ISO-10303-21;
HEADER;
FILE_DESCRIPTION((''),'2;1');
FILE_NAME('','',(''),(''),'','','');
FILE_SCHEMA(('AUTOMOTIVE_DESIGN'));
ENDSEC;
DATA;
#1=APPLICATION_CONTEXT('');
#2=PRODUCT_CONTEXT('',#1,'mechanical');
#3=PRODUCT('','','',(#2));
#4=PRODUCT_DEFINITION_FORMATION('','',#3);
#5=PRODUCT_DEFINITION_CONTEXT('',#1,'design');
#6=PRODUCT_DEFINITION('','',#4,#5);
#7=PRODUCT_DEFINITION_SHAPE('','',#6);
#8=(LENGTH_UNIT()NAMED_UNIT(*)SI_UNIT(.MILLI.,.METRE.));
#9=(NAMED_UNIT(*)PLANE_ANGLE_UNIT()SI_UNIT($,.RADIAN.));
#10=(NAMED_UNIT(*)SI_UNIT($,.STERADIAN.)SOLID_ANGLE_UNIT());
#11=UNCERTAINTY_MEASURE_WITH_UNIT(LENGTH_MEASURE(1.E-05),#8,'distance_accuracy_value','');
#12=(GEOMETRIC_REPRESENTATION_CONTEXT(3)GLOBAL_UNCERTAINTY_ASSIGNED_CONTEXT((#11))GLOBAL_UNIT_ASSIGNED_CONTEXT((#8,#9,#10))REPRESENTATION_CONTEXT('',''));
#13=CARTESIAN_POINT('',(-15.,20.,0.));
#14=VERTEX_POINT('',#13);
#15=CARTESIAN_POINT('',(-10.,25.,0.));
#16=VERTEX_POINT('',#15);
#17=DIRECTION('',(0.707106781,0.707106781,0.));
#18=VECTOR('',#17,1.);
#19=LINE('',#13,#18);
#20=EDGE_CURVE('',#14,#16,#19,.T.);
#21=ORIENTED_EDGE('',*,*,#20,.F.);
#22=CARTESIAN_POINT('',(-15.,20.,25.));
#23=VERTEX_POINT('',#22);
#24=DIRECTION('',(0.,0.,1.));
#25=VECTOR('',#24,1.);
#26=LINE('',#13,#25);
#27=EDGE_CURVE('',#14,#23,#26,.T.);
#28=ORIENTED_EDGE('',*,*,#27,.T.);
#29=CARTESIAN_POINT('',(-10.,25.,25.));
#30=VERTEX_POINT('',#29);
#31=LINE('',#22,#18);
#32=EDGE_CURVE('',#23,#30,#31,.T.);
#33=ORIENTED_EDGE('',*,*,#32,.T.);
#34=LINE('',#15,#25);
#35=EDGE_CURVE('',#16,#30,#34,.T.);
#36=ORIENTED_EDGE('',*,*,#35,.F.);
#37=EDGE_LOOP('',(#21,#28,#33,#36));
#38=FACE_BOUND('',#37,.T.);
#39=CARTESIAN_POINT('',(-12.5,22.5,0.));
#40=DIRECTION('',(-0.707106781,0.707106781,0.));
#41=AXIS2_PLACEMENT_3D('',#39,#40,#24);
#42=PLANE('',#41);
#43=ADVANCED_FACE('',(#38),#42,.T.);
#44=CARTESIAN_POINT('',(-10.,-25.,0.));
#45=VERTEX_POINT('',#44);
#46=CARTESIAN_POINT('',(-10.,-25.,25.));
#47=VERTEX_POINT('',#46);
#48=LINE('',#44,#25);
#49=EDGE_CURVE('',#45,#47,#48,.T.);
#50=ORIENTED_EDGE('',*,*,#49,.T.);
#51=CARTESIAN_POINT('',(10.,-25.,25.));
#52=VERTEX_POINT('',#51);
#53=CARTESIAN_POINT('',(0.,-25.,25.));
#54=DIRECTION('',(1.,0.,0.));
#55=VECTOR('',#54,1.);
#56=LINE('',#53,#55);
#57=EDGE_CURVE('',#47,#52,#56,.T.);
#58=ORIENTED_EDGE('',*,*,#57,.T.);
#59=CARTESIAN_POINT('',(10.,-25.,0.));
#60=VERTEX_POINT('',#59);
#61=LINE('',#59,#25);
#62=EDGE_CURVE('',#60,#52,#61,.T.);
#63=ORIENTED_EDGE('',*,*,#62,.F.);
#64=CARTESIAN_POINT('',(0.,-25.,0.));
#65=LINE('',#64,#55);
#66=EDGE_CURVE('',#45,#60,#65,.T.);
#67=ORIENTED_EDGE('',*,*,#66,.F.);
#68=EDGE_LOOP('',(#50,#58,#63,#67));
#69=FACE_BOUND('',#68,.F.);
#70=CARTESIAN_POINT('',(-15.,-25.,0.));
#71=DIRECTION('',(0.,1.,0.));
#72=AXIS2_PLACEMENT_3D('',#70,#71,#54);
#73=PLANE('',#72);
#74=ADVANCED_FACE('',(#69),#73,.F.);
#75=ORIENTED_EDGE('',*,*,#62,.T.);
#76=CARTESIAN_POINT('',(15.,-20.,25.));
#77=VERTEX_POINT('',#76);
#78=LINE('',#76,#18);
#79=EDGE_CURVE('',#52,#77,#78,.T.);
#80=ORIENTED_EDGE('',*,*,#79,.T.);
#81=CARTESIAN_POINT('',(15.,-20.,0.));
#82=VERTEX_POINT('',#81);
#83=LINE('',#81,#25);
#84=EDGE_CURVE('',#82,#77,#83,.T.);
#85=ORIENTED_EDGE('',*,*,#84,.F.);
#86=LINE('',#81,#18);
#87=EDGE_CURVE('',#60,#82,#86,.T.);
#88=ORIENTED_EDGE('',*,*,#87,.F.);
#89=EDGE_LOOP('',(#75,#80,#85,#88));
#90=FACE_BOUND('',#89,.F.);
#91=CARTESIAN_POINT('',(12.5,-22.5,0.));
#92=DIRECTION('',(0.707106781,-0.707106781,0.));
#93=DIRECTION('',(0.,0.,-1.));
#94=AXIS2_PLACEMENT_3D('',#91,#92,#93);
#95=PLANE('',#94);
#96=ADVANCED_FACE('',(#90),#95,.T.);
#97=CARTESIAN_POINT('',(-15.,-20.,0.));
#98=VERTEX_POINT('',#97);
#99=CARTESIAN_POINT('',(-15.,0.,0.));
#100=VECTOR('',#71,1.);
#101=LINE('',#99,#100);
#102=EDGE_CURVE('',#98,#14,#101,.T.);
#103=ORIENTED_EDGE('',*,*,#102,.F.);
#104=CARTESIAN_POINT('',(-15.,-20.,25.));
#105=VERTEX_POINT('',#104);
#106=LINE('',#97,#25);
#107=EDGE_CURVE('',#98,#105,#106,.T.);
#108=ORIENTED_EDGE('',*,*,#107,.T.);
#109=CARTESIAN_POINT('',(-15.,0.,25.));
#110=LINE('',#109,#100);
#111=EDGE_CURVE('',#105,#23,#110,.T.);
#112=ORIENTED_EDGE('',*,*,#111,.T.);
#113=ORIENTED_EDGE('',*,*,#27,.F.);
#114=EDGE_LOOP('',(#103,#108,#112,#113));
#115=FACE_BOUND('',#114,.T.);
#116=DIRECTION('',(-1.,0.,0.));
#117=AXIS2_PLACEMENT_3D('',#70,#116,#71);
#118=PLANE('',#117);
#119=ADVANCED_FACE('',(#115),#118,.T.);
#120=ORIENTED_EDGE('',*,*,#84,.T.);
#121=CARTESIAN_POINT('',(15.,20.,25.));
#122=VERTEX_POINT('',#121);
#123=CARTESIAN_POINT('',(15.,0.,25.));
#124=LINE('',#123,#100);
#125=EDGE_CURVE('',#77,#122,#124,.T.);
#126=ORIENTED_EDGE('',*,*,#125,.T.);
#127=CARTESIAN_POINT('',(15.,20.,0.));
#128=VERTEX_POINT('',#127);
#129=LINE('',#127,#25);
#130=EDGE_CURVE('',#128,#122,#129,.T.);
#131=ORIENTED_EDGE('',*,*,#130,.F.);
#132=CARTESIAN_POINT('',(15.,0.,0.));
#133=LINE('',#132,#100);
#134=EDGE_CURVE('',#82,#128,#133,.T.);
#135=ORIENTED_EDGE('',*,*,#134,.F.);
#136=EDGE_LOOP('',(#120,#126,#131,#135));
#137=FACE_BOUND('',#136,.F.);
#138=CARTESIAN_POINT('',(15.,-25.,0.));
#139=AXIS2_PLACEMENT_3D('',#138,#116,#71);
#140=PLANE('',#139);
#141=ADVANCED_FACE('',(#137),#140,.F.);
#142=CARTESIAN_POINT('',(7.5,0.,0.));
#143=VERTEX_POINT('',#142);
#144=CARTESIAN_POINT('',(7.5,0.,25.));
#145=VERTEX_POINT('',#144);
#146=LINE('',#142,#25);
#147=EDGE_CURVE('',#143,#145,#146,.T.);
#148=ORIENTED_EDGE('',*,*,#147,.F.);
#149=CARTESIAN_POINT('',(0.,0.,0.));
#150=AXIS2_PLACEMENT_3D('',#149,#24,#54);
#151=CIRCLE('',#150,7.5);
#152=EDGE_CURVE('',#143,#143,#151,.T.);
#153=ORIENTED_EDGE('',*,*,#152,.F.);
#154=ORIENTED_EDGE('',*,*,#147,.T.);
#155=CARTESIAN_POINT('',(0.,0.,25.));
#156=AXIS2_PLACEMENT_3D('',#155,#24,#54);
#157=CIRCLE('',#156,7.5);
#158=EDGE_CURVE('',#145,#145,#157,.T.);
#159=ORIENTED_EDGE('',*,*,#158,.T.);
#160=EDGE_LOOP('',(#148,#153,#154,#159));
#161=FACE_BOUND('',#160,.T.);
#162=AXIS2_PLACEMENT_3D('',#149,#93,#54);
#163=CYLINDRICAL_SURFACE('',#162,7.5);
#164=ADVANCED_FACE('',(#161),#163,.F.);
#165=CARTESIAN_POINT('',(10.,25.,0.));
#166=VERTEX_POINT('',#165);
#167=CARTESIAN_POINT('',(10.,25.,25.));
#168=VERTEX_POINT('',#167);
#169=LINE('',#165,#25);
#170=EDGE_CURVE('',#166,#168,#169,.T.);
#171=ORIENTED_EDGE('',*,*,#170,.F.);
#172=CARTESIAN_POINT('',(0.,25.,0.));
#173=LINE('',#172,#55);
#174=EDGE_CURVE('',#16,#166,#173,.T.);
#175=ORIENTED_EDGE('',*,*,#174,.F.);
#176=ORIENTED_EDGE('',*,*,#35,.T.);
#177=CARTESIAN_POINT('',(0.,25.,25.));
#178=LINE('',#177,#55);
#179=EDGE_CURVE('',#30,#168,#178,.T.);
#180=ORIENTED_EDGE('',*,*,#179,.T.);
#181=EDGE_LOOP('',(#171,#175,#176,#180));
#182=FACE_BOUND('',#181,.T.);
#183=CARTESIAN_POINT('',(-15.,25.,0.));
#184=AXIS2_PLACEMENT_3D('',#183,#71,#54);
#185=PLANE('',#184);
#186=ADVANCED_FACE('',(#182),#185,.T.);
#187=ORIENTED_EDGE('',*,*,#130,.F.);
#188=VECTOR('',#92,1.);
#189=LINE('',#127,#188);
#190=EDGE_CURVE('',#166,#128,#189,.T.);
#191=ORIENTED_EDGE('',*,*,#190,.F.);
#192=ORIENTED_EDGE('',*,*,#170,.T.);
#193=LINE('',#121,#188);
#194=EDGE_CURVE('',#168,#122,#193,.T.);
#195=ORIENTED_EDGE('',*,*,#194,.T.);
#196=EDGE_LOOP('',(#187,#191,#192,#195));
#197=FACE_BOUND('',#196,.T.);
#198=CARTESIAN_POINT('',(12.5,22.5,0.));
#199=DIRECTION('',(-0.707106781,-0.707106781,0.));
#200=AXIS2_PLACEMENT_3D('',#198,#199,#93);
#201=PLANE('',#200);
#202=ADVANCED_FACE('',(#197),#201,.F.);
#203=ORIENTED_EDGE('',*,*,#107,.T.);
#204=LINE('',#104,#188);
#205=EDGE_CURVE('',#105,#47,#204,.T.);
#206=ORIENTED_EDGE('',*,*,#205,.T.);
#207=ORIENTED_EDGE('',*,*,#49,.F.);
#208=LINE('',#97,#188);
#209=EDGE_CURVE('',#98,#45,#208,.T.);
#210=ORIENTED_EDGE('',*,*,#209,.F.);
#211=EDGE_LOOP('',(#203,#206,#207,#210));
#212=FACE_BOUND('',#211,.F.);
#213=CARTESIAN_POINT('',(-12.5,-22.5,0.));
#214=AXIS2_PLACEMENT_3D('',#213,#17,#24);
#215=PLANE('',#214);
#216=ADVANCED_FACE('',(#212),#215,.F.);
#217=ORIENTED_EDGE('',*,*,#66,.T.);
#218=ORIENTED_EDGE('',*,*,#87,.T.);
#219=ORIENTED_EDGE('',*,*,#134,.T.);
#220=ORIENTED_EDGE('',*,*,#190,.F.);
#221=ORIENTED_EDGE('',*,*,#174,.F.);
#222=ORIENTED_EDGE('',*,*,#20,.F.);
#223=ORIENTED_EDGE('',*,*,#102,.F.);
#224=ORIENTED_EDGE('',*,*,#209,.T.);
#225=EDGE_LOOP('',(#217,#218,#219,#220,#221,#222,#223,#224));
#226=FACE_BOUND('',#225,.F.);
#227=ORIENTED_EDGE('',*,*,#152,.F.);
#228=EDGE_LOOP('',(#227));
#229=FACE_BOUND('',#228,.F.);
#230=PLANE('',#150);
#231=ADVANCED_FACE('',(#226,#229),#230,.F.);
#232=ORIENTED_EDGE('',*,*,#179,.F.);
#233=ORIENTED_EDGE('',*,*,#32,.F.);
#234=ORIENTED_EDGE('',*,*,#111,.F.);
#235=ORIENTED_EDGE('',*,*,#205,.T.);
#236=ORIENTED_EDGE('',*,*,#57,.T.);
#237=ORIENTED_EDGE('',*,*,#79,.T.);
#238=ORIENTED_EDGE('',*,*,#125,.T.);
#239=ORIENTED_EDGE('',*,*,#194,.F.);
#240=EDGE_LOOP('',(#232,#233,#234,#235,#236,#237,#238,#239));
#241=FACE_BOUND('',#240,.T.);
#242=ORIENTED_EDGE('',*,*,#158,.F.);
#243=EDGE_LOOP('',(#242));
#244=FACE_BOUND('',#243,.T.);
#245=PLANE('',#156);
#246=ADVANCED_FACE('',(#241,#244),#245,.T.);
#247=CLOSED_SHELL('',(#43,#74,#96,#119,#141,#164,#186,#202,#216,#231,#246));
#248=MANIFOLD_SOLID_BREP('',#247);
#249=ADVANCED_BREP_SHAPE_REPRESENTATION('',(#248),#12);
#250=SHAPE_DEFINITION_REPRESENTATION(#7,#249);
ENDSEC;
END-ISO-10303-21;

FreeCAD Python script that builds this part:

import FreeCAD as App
import Part
import Sketcher

V = App.Vector
Q = App.Units.Quantity


def edges_at(feature, points):
    """Names of the edges that pass closest to the given points."""
    edges = feature.Shape.Edges
    near = lambda p: min(range(len(edges)), key=lambda i: edges[i].distToShape(Part.Vertex(*p))[0])
    return sorted({f"Edge{near(p) + 1}" for p in points})

doc = App.newDocument("Part")
body = doc.addObject("PartDesign::Body", "Body")

sketch1 = body.newObject("Sketcher::SketchObject", "Sketch")
sketch1.AttachmentSupport = (doc.getObject("XY_Plane"), [""])
sketch1.MapMode = "FlatFace"
sketch1.addGeometry(Part.LineSegment(V(-15, 25, 0), V(-15, -25, 0)), False)
sketch1.addGeometry(Part.LineSegment(V(-15, -25, 0), V(15, -25, 0)), False)
sketch1.addGeometry(Part.LineSegment(V(15, -25, 0), V(15, 25, 0)), False)
sketch1.addGeometry(Part.LineSegment(V(15, 25, 0), V(-15, 25, 0)), False)
sketch1.addGeometry(Part.Circle(V(0, 0, 0), V(0, 0, 1), 8), False)
sketch1.addConstraint(Sketcher.Constraint("Coincident", 0, 2, 1, 1))
sketch1.addConstraint(Sketcher.Constraint("Coincident", 1, 2, 2, 1))
sketch1.addConstraint(Sketcher.Constraint("Coincident", 2, 2, 3, 1))
sketch1.addConstraint(Sketcher.Constraint("Coincident", 3, 2, 0, 1))
sketch1.addConstraint(Sketcher.Constraint("Vertical", 0))
sketch1.addConstraint(Sketcher.Constraint("Horizontal", 1))
sketch1.addConstraint(Sketcher.Constraint("Vertical", 2))
sketch1.addConstraint(Sketcher.Constraint("Horizontal", 3))
sketch1.addConstraint(Sketcher.Constraint("Coincident", 4, 3, -1, 1))
sketch1.addConstraint(Sketcher.Constraint("Symmetric", 0, 2, 2, 2, -1, 1))
sketch1.addConstraint(Sketcher.Constraint("Diameter", 4, Q("15 mm")))
sketch1.addConstraint(Sketcher.Constraint("DistanceX", 1, 1, 1, 2, Q("30 mm")))
sketch1.addConstraint(Sketcher.Constraint("DistanceY", 0, 2, 0, 1, Q("50 mm")))
pad1 = body.newObject("PartDesign::Pad", "Pad")
pad1.Profile = sketch1
pad1.Length = 25
doc.recompute()

chamfer = body.newObject("PartDesign::Chamfer", "Chamfer")
chamfer.Base = (pad1, edges_at(pad1, [
    (15, -25, 12.5),
    (-15, -25, 12.5),
    (15, 25, 12.5),
    (-15, 25, 12.5),
]))
chamfer.Size = 5

doc.recompute()
